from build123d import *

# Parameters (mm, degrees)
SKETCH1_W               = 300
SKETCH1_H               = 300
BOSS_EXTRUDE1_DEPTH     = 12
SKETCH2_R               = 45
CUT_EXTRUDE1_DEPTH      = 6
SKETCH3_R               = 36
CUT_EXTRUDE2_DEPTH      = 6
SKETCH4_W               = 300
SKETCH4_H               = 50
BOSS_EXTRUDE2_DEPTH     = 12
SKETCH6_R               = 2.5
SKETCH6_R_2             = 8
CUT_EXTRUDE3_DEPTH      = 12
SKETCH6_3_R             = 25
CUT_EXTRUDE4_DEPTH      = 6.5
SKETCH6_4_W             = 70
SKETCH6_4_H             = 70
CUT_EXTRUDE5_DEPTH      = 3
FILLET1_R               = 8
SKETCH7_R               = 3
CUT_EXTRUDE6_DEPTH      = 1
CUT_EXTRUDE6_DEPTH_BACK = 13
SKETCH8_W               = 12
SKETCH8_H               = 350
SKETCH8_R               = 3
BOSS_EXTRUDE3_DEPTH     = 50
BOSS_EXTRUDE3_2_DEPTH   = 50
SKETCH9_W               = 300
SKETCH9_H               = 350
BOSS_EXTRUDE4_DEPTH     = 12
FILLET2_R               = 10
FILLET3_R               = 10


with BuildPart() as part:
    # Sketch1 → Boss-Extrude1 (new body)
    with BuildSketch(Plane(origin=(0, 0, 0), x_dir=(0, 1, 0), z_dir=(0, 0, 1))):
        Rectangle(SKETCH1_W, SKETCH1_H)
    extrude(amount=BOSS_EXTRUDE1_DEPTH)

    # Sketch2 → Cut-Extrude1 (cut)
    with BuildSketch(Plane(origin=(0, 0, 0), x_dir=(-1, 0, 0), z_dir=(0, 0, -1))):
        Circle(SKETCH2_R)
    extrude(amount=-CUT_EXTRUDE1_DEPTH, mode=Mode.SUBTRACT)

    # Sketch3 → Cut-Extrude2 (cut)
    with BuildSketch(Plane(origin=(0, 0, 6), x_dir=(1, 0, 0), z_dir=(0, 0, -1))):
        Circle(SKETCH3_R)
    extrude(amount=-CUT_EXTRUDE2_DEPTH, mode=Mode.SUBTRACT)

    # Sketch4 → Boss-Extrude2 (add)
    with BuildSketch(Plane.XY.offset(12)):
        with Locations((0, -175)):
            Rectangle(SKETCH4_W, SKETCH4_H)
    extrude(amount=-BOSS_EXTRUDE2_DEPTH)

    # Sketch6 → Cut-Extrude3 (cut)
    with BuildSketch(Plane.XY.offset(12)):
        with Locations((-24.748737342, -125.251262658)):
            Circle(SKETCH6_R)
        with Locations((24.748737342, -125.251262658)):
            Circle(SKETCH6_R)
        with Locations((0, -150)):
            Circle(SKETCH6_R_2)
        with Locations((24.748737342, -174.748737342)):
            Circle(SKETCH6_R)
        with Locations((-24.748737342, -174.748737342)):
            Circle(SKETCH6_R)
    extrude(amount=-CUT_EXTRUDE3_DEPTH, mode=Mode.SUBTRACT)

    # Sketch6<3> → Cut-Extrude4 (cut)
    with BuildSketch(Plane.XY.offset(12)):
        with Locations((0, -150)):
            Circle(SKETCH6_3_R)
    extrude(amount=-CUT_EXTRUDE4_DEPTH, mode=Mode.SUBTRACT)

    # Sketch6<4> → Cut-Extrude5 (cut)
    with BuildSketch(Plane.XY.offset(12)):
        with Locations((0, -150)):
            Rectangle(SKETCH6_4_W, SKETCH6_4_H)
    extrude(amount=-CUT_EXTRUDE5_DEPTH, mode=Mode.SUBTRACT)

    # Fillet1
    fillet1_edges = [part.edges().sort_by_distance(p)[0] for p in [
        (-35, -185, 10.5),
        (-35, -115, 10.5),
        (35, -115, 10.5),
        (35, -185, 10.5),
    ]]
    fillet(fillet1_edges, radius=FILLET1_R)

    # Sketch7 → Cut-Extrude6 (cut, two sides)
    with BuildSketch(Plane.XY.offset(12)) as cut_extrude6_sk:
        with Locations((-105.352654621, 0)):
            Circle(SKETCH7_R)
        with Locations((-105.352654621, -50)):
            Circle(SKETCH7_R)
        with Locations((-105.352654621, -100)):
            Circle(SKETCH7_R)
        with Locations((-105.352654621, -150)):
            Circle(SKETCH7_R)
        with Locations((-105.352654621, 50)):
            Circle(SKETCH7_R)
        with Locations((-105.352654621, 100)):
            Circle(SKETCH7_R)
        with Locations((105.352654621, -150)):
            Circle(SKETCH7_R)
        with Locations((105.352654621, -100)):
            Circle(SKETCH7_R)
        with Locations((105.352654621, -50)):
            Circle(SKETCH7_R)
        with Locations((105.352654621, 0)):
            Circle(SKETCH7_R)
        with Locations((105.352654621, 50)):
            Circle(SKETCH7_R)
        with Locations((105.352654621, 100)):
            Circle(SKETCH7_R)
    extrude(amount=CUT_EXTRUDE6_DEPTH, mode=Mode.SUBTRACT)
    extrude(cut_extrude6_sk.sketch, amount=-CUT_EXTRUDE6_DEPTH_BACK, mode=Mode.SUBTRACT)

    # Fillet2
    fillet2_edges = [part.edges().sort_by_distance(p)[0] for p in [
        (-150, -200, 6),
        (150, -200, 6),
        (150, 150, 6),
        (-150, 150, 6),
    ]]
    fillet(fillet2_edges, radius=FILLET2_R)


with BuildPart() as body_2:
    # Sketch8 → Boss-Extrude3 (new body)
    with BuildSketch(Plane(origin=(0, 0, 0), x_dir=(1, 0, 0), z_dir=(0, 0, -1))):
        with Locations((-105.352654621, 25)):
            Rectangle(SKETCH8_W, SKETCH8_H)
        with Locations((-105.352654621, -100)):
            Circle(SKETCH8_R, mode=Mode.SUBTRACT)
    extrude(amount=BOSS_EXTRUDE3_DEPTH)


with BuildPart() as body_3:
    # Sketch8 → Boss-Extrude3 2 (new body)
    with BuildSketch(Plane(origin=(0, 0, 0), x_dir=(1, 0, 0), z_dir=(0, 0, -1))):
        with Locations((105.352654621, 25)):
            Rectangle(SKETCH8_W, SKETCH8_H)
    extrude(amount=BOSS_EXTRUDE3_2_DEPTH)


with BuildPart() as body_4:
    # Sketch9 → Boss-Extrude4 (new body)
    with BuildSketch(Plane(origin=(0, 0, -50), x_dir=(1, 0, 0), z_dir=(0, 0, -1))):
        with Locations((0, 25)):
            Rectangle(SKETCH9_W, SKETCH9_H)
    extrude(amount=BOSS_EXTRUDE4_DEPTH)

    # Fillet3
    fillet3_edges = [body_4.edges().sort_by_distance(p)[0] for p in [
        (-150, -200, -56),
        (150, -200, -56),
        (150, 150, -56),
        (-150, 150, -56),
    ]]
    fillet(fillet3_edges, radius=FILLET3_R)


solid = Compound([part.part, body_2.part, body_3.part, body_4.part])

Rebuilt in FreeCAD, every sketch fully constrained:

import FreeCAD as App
import Part
import Sketcher


def edges_at(feature, points):
    """Names of the edges that pass closest to the given points."""
    edges = feature.Shape.Edges
    near = lambda p: min(range(len(edges)), key=lambda i: edges[i].distToShape(Part.Vertex(*p))[0])
    return sorted({f"Edge{near(p) + 1}" for p in points})


def add_polygon(sketch, points):
    """Adds a closed chain of lines whose ends are joined by coincident constraints."""
    first, n = sketch.GeometryCount, len(points)
    for a, b in zip(points, points[1:] + points[:1]):
        sketch.addGeometry(Part.LineSegment(App.Vector(*a, 0), App.Vector(*b, 0)), False)
    for i in range(n):
        sketch.addConstraint(Sketcher.Constraint("Coincident", first + i, 2, first + (i + 1) % n, 1))

doc = App.newDocument("Part")
body = doc.addObject("PartDesign::Body", "Body")

sketch1 = body.newObject("Sketcher::SketchObject", "Sketch")
sketch1.AttachmentSupport = (doc.getObject("XY_Plane"), [""])
sketch1.MapMode = "FlatFace"
add_polygon(sketch1, [(-150, -150), (150, -150), (150, 150), (-150, 150)])
sketch1.addConstraint(Sketcher.Constraint("Horizontal", 0))
sketch1.addConstraint(Sketcher.Constraint("Vertical", 1))
sketch1.addConstraint(Sketcher.Constraint("Horizontal", 2))
sketch1.addConstraint(Sketcher.Constraint("Vertical", 3))
sketch1.addConstraint(Sketcher.Constraint("Symmetric", 0, 2, 2, 2, -1, 1))
sketch1.addConstraint(Sketcher.Constraint("Equal", 2, 1))
sketch1.addConstraint(Sketcher.Constraint("DistanceX", 0, 1, 0, 2, 300.0))
pad1 = body.newObject("PartDesign::Pad", "Pad")
pad1.Profile = sketch1
pad1.Length = 12

sketch2 = body.newObject("Sketcher::SketchObject", "Sketch001")
sketch2.AttachmentSupport = (doc.getObject("XY_Plane"), [""])
sketch2.MapMode = "FlatFace"
sketch2.addGeometry(Part.Circle(App.Vector(0, 0, 0), App.Vector(0, 0, 1), 45), False)
sketch2.addConstraint(Sketcher.Constraint("Coincident", 0, 3, -1, 1))
sketch2.addConstraint(Sketcher.Constraint("Diameter", 0, 90.0))
pocket1 = body.newObject("PartDesign::Pocket", "Pocket")
pocket1.Profile = sketch2
pocket1.Length = 6
pocket1.Reversed = True

sketch3 = body.newObject("Sketcher::SketchObject", "Sketch002")
sketch3.AttachmentSupport = (doc.getObject("XY_Plane"), [""])
sketch3.MapMode = "FlatFace"
sketch3.AttachmentOffset = App.Placement(App.Vector(0, 0, 6), App.Rotation())
sketch3.addGeometry(Part.Circle(App.Vector(0, 0, 0), App.Vector(0, 0, 1), 36), False)
sketch3.addConstraint(Sketcher.Constraint("Coincident", 0, 3, -1, 1))
sketch3.addConstraint(Sketcher.Constraint("Diameter", 0, 72.0))
pocket2 = body.newObject("PartDesign::Pocket", "Pocket001")
pocket2.Profile = sketch3
pocket2.Length = 6
pocket2.Reversed = True

sketch4 = body.newObject("Sketcher::SketchObject", "Sketch003")
sketch4.AttachmentSupport = (doc.getObject("XY_Plane"), [""])
sketch4.MapMode = "FlatFace"
sketch4.AttachmentOffset = App.Placement(App.Vector(0, 0, 12), App.Rotation())
add_polygon(sketch4, [(-150, -150), (-150, -200), (150, -200), (150, -150)])
sketch4.addConstraint(Sketcher.Constraint("Vertical", 0))
sketch4.addConstraint(Sketcher.Constraint("Horizontal", 1))
sketch4.addConstraint(Sketcher.Constraint("Vertical", 2))
sketch4.addConstraint(Sketcher.Constraint("Horizontal", 3))
sketch4.addConstraint(Sketcher.Constraint("DistanceX", 1, 1, 1, 2, 300.0))
sketch4.addConstraint(Sketcher.Constraint("DistanceY", 0, 2, 0, 1, 50.0))
sketch4.addConstraint(Sketcher.Constraint("DistanceX", 0, 2, -1, 1, 150.0))
sketch4.addConstraint(Sketcher.Constraint("DistanceY", 0, 2, -1, 1, 200.0))
pad2 = body.newObject("PartDesign::Pad", "Pad001")
pad2.Profile = sketch4
pad2.Length = 12
pad2.Reversed = True

sketch5 = body.newObject("Sketcher::SketchObject", "Sketch004")
sketch5.AttachmentSupport = (doc.getObject("XY_Plane"), [""])
sketch5.MapMode = "FlatFace"
sketch5.AttachmentOffset = App.Placement(App.Vector(0, 0, 12), App.Rotation())
sketch5.addGeometry(Part.Circle(App.Vector(-24.7, -125.3, 0), App.Vector(0, 0, 1), 2.5), False)
sketch5.addGeometry(Part.Circle(App.Vector(24.7, -125.3, 0), App.Vector(0, 0, 1), 2.5), False)
sketch5.addGeometry(Part.Circle(App.Vector(0, -150, 0), App.Vector(0, 0, 1), 8), False)
sketch5.addGeometry(Part.Circle(App.Vector(24.7, -174.7, 0), App.Vector(0, 0, 1), 2.5), False)
sketch5.addGeometry(Part.Circle(App.Vector(-24.7, -174.7, 0), App.Vector(0, 0, 1), 2.5), False)
sketch5.addConstraint(Sketcher.Constraint("Equal", 0, 1))
sketch5.addConstraint(Sketcher.Constraint("Equal", 1, 3))
sketch5.addConstraint(Sketcher.Constraint("Equal", 3, 4))
sketch5.addConstraint(Sketcher.Constraint("Symmetric", 0, 3, 1, 3, -2))
sketch5.addConstraint(Sketcher.Constraint("Symmetric", 3, 3, 4, 3, -2))
sketch5.addConstraint(Sketcher.Constraint("PointOnObject", 2, 3, -2))
sketch5.addConstraint(Sketcher.Constraint("Vertical", 1, 3, 3, 3))
sketch5.addConstraint(Sketcher.Constraint("Diameter", 0, 5.0))
sketch5.addConstraint(Sketcher.Constraint("Diameter", 2, 16.0))
sketch5.addConstraint(Sketcher.Constraint("DistanceY", 2, 3, -1, 1, 150.0))
sketch5.addConstraint(Sketcher.Constraint("DistanceX", 0, 3, -1, 1, 24.748737))
sketch5.addConstraint(Sketcher.Constraint("DistanceY", 0, 3, -1, 1, 125.251263))
sketch5.addConstraint(Sketcher.Constraint("DistanceY", 3, 3, -1, 1, 174.748737))
pocket3 = body.newObject("PartDesign::Pocket", "Pocket002")
pocket3.Profile = sketch5
pocket3.Length = 12

sketch6 = body.newObject("Sketcher::SketchObject", "Sketch005")
sketch6.AttachmentSupport = (doc.getObject("XY_Plane"), [""])
sketch6.MapMode = "FlatFace"
sketch6.AttachmentOffset = App.Placement(App.Vector(0, 0, 12), App.Rotation())
sketch6.addGeometry(Part.Circle(App.Vector(0, -150, 0), App.Vector(0, 0, 1), 25), False)
sketch6.addConstraint(Sketcher.Constraint("PointOnObject", 0, 3, -2))
sketch6.addConstraint(Sketcher.Constraint("Diameter", 0, 50.0))
sketch6.addConstraint(Sketcher.Constraint("DistanceY", 0, 3, -1, 1, 150.0))
pocket4 = body.newObject("PartDesign::Pocket", "Pocket003")
pocket4.Profile = sketch6
pocket4.Length = 6.5

sketch7 = body.newObject("Sketcher::SketchObject", "Sketch006")
sketch7.AttachmentSupport = (doc.getObject("XY_Plane"), [""])
sketch7.MapMode = "FlatFace"
sketch7.AttachmentOffset = App.Placement(App.Vector(0, 0, 12), App.Rotation())
add_polygon(sketch7, [(-35, -115), (-35, -185), (35, -185), (35, -115)])
sketch7.addConstraint(Sketcher.Constraint("Vertical", 0))
sketch7.addConstraint(Sketcher.Constraint("Horizontal", 1))
sketch7.addConstraint(Sketcher.Constraint("Vertical", 2))
sketch7.addConstraint(Sketcher.Constraint("Horizontal", 3))
sketch7.addConstraint(Sketcher.Constraint("Equal", 3, 0))
sketch7.addConstraint(Sketcher.Constraint("DistanceX", 1, 1, 1, 2, 70.0))
sketch7.addConstraint(Sketcher.Constraint("DistanceX", 0, 2, -1, 1, 35.0))
sketch7.addConstraint(Sketcher.Constraint("DistanceY", 0, 2, -1, 1, 185.0))
pocket5 = body.newObject("PartDesign::Pocket", "Pocket004")
pocket5.Profile = sketch7
pocket5.Length = 3
doc.recompute()

fillet = body.newObject("PartDesign::Fillet", "Fillet")
fillet.Base = (pocket5, edges_at(pocket5, [
    (-35, -185, 10.5),
    (-35, -115, 10.5),
    (35, -115, 10.5),
    (35, -185, 10.5),
]))
fillet.Radius = 8

sketch8 = body.newObject("Sketcher::SketchObject", "Sketch007")
sketch8.AttachmentSupport = (doc.getObject("XY_Plane"), [""])
sketch8.MapMode = "FlatFace"
sketch8.AttachmentOffset = App.Placement(App.Vector(0, 0, 12), App.Rotation())
sketch8.addGeometry(Part.Circle(App.Vector(-105.4, 0, 0), App.Vector(0, 0, 1), 3), False)
sketch8.addGeometry(Part.Circle(App.Vector(-105.4, -50, 0), App.Vector(0, 0, 1), 3), False)
sketch8.addGeometry(Part.Circle(App.Vector(-105.4, -100, 0), App.Vector(0, 0, 1), 3), False)
sketch8.addGeometry(Part.Circle(App.Vector(-105.4, -150, 0), App.Vector(0, 0, 1), 3), False)
sketch8.addGeometry(Part.Circle(App.Vector(-105.4, 50, 0), App.Vector(0, 0, 1), 3), False)
sketch8.addGeometry(Part.Circle(App.Vector(-105.4, 100, 0), App.Vector(0, 0, 1), 3), False)
sketch8.addGeometry(Part.Circle(App.Vector(105.4, -150, 0), App.Vector(0, 0, 1), 3), False)
sketch8.addGeometry(Part.Circle(App.Vector(105.4, -100, 0), App.Vector(0, 0, 1), 3), False)
sketch8.addGeometry(Part.Circle(App.Vector(105.4, -50, 0), App.Vector(0, 0, 1), 3), False)
sketch8.addGeometry(Part.Circle(App.Vector(105.4, 0, 0), App.Vector(0, 0, 1), 3), False)
sketch8.addGeometry(Part.Circle(App.Vector(105.4, 50, 0), App.Vector(0, 0, 1), 3), False)
sketch8.addGeometry(Part.Circle(App.Vector(105.4, 100, 0), App.Vector(0, 0, 1), 3), False)
sketch8.addConstraint(Sketcher.Constraint("Equal", 0, 1))
sketch8.addConstraint(Sketcher.Constraint("Equal", 1, 2))
sketch8.addConstraint(Sketcher.Constraint("Equal", 2, 3))
sketch8.addConstraint(Sketcher.Constraint("Equal", 3, 4))
sketch8.addConstraint(Sketcher.Constraint("Equal", 4, 5))
sketch8.addConstraint(Sketcher.Constraint("Equal", 5, 6))
sketch8.addConstraint(Sketcher.Constraint("Equal", 6, 7))
sketch8.addConstraint(Sketcher.Constraint("Equal", 7, 8))
sketch8.addConstraint(Sketcher.Constraint("Equal", 8, 9))
sketch8.addConstraint(Sketcher.Constraint("Equal", 9, 10))
sketch8.addConstraint(Sketcher.Constraint("Equal", 10, 11))
sketch8.addConstraint(Sketcher.Constraint("Symmetric", 5, 3, 7, 3, -1, 1))
sketch8.addConstraint(Sketcher.Constraint("Symmetric", 4, 3, 8, 3, -1, 1))
sketch8.addConstraint(Sketcher.Constraint("Symmetric", 0, 3, 9, 3, -1, 1))
sketch8.addConstraint(Sketcher.Constraint("Symmetric", 1, 3, 10, 3, -1, 1))
sketch8.addConstraint(Sketcher.Constraint("Symmetric", 2, 3, 11, 3, -1, 1))
sketch8.addConstraint(Sketcher.Constraint("Symmetric", 3, 3, 6, 3, -2))
sketch8.addConstraint(Sketcher.Constraint("Symmetric", 2, 3, 7, 3, -2))
sketch8.addConstraint(Sketcher.Constraint("Symmetric", 1, 3, 8, 3, -2))
sketch8.addConstraint(Sketcher.Constraint("PointOnObject", 0, 3, -1))
sketch8.addConstraint(Sketcher.Constraint("Vertical", 0, 3, 1, 3))
sketch8.addConstraint(Sketcher.Constraint("Vertical", 1, 3, 2, 3))
sketch8.addConstraint(Sketcher.Constraint("Vertical", 2, 3, 3, 3))
sketch8.addConstraint(Sketcher.Constraint("Diameter", 0, 6.0))
sketch8.addConstraint(Sketcher.Constraint("DistanceY", 1, 3, -1, 1, 50.0))
sketch8.addConstraint(Sketcher.Constraint("DistanceY", 2, 3, -1, 1, 100.0))
sketch8.addConstraint(Sketcher.Constraint("DistanceY", 3, 3, -1, 1, 150.0))
sketch8.addConstraint(Sketcher.Constraint("DistanceX", 3, 3, 6, 3, 210.705309))
pocket6 = body.newObject("PartDesign::Pocket", "Pocket005")
pocket6.Profile = sketch8
pocket6.Type = "ThroughAll"
pocket6.Midplane = True
doc.recompute()

fillet2 = body.newObject("PartDesign::Fillet", "Fillet001")
fillet2.Base = (pocket6, edges_at(pocket6, [
    (-150, -200, 6),
    (150, -200, 6),
    (150, 150, 6),
    (-150, 150, 6),
]))
fillet2.Radius = 10
body2 = doc.addObject("PartDesign::Body", "Body001")

sketch9 = body2.newObject("Sketcher::SketchObject", "Sketch008")
sketch9.AttachmentSupport = (doc.getObject("XY_Plane001"), [""])
sketch9.MapMode = "FlatFace"
add_polygon(sketch9, [(-111.4, -200), (-111.4, 150), (-99.4, 150), (-99.4, -200)])
sketch9.addGeometry(Part.Circle(App.Vector(-105.4, 100, 0), App.Vector(0, 0, 1), 3), False)
sketch9.addConstraint(Sketcher.Constraint("Vertical", 0))
sketch9.addConstraint(Sketcher.Constraint("Horizontal", 1))
sketch9.addConstraint(Sketcher.Constraint("Vertical", 2))
sketch9.addConstraint(Sketcher.Constraint("Horizontal", 3))
sketch9.addConstraint(Sketcher.Constraint("Diameter", 4, 6.0))
sketch9.addConstraint(Sketcher.Constraint("DistanceX", 1, 1, 1, 2, 12.0))
sketch9.addConstraint(Sketcher.Constraint("DistanceY", 0, 1, 0, 2, 350.0))
sketch9.addConstraint(Sketcher.Constraint("DistanceY", -1, 1, 4, 3, 100.0))
sketch9.addConstraint(Sketcher.Constraint("DistanceY", -1, 1, 0, 2, 150.0))
sketch9.addConstraint(Sketcher.Constraint("DistanceX", 0, 2, 4, 3, 6.0))
sketch9.addConstraint(Sketcher.Constraint("DistanceX", 4, 3, -1, 1, 105.352655))
pad3 = body2.newObject("PartDesign::Pad", "Pad002")
pad3.Profile = sketch9
pad3.Length = 50
pad3.Reversed = True
body3 = doc.addObject("PartDesign::Body", "Body002")

sketch10 = body3.newObject("Sketcher::SketchObject", "Sketch009")
sketch10.AttachmentSupport = (doc.getObject("XY_Plane002"), [""])
sketch10.MapMode = "FlatFace"
add_polygon(sketch10, [(99, -200), (99, 150), (111, 150), (111, -200)])
sketch10.addConstraint(Sketcher.Constraint("Vertical", 0))
sketch10.addConstraint(Sketcher.Constraint("Horizontal", 1))
sketch10.addConstraint(Sketcher.Constraint("Vertical", 2))
sketch10.addConstraint(Sketcher.Constraint("Horizontal", 3))
sketch10.addConstraint(Sketcher.Constraint("DistanceX", 1, 1, 1, 2, 12.0))
sketch10.addConstraint(Sketcher.Constraint("DistanceY", 0, 1, 0, 2, 350.0))
sketch10.addConstraint(Sketcher.Constraint("DistanceY", -1, 1, 0, 2, 150.0))
sketch10.addConstraint(Sketcher.Constraint("DistanceX", -1, 1, 0, 2, 99.352655))
pad4 = body3.newObject("PartDesign::Pad", "Pad003")
pad4.Profile = sketch10
pad4.Length = 50
pad4.Reversed = True
body4 = doc.addObject("PartDesign::Body", "Body003")

sketch11 = body4.newObject("Sketcher::SketchObject", "Sketch010")
sketch11.AttachmentSupport = (doc.getObject("XY_Plane003"), [""])
sketch11.MapMode = "FlatFace"
sketch11.AttachmentOffset = App.Placement(App.Vector(0, 0, -50), App.Rotation())
add_polygon(sketch11, [(-150, -200), (-150, 150), (150, 150), (150, -200)])
sketch11.addConstraint(Sketcher.Constraint("Vertical", 0))
sketch11.addConstraint(Sketcher.Constraint("Horizontal", 1))
sketch11.addConstraint(Sketcher.Constraint("Vertical", 2))
sketch11.addConstraint(Sketcher.Constraint("Horizontal", 3))
sketch11.addConstraint(Sketcher.Constraint("DistanceX", 1, 1, 1, 2, 300.0))
sketch11.addConstraint(Sketcher.Constraint("DistanceY", 0, 1, 0, 2, 350.0))
sketch11.addConstraint(Sketcher.Constraint("DistanceX", 0, 2, -1, 1, 150.0))
sketch11.addConstraint(Sketcher.Constraint("DistanceY", -1, 1, 0, 2, 150.0))
pad5 = body4.newObject("PartDesign::Pad", "Pad004")
pad5.Profile = sketch11
pad5.Length = 12
pad5.Reversed = True
doc.recompute()

fillet3 = body4.newObject("PartDesign::Fillet", "Fillet002")
fillet3.Base = (pad5, edges_at(pad5, [
    (-150, -200, -56),
    (150, -200, -56),
    (150, 150, -56),
    (-150, 150, -56),
]))
fillet3.Radius = 10

doc.recompute()
